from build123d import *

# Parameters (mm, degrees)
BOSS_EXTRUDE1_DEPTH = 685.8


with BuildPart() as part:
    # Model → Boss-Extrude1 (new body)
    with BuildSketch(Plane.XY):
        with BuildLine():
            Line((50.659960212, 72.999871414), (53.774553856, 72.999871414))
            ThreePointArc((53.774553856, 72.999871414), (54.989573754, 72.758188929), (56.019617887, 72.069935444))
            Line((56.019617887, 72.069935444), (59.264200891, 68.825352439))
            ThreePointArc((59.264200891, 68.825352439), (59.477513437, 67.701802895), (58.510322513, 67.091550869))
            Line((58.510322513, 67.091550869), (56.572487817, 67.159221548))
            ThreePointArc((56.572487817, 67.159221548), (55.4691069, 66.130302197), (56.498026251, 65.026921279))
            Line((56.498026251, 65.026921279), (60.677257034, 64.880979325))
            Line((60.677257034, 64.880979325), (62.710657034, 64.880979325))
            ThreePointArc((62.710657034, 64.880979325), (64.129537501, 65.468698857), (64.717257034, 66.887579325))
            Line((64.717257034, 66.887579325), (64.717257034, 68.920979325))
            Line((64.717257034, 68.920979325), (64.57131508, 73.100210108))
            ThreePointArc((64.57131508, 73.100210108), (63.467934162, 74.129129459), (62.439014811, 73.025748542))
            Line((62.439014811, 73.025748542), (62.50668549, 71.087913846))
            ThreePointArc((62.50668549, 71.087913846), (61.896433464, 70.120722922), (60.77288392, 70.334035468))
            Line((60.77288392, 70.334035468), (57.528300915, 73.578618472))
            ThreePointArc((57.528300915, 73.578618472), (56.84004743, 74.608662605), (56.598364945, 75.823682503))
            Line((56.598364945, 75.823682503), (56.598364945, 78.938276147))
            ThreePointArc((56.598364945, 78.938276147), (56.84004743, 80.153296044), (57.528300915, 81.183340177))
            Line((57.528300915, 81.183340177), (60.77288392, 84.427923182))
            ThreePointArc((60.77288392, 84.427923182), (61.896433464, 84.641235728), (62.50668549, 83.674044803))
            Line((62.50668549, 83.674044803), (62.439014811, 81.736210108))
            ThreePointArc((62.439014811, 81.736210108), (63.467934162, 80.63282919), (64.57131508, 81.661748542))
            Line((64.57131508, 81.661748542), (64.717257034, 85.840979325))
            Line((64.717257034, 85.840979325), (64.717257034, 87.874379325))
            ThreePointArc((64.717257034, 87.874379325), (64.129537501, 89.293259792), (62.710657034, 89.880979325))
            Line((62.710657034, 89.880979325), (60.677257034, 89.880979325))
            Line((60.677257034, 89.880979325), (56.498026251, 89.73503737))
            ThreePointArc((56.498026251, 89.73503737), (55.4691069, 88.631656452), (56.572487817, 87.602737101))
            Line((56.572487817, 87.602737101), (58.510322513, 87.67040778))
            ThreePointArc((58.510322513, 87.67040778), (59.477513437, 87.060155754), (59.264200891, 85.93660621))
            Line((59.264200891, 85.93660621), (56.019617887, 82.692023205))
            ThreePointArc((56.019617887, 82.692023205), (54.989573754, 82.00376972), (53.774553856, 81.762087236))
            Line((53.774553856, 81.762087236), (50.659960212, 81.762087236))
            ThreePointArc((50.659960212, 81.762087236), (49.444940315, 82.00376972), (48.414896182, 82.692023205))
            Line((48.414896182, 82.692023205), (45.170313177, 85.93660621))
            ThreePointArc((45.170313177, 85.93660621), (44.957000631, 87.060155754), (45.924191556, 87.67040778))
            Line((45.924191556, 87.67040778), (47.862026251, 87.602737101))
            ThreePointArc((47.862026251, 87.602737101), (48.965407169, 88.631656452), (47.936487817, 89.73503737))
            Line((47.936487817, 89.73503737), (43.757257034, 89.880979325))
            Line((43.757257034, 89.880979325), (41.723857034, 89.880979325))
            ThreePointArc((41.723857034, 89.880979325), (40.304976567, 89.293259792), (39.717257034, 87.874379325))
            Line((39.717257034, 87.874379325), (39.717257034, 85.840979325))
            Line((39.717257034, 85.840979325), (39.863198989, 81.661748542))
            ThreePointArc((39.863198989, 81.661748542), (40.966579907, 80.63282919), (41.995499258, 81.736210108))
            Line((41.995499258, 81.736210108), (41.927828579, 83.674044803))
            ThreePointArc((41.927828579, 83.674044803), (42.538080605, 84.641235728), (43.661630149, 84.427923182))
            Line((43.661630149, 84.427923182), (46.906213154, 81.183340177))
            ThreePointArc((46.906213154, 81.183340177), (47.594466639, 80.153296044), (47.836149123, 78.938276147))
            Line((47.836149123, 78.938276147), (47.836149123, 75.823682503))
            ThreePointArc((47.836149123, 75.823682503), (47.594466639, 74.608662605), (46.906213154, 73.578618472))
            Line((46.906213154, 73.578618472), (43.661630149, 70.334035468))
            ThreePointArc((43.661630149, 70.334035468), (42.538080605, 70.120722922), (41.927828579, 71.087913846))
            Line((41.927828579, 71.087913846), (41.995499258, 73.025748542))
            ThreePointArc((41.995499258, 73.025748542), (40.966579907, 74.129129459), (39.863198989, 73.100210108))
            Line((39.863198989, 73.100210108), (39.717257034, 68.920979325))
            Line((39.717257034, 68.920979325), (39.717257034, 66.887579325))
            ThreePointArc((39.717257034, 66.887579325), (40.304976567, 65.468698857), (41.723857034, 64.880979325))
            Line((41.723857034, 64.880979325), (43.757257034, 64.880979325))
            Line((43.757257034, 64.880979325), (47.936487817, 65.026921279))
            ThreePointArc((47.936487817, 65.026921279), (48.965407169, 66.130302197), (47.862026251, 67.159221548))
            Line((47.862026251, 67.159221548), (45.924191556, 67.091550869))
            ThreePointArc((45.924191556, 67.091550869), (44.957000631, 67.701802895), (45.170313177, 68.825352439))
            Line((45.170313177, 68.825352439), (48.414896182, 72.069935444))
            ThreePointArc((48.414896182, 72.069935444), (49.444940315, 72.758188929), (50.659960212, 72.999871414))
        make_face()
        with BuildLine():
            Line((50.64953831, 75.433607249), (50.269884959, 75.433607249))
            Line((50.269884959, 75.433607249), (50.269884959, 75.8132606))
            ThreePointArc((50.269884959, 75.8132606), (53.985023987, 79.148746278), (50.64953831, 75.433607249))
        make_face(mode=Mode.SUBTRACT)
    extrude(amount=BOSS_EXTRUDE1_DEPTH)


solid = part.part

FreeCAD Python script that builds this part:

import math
import FreeCAD as App
import Part
import Sketcher

V = App.Vector
Q = App.Units.Quantity

doc = App.newDocument("Part")
body = doc.addObject("PartDesign::Body", "Body")

# Sketch on XY plane
sketch1 = body.newObject("Sketcher::SketchObject", "Sketch")
sketch1.AttachmentSupport = (doc.getObject("XY_Plane"), [""])
sketch1.MapMode = "FlatFace"
sketch1.addGeometry([
    Part.LineSegment(V(50.66, 73, 0), V(53.77, 73, 0)),  # 0
    Part.ArcOfCircle(Part.Circle(V(53.77, 69.82, 0), V(0, 0, 1), 3.18), math.radians(45), math.radians(90)),  # 1
    Part.LineSegment(V(56.02, 72.07, 0), V(59.26, 68.83, 0)),  # 2
    Part.ArcOfCircle(Part.Circle(V(58.55, 68.11, 0), V(0, 0, 1), 1.02), math.radians(-92), math.radians(45)),  # 3
    Part.LineSegment(V(58.51, 67.09, 0), V(56.57, 67.16, 0)),  # 4
    Part.ArcOfCircle(Part.Circle(V(56.54, 66.09, 0), V(0, 0, 1), 1.07), math.radians(88), math.radians(268)),  # 5
    Part.LineSegment(V(56.5, 65.03, 0), V(60.68, 64.88, 0)),  # 6
    Part.LineSegment(V(60.68, 64.88, 0), V(62.71, 64.88, 0)),  # 7
    Part.ArcOfCircle(Part.Circle(V(62.71, 66.89, 0), V(0, 0, 1), 2.01), math.radians(-90), math.radians(0)),  # 8
    Part.LineSegment(V(64.72, 66.89, 0), V(64.72, 68.92, 0)),  # 9
    Part.LineSegment(V(64.72, 68.92, 0), V(64.57, 73.1, 0)),  # 10
    Part.ArcOfCircle(Part.Circle(V(63.51, 73.06, 0), V(0, 0, 1), 1.07), math.radians(2), math.radians(182)),  # 11
    Part.LineSegment(V(62.44, 73.03, 0), V(62.51, 71.09, 0)),  # 12
    Part.ArcOfCircle(Part.Circle(V(61.49, 71.05, 0), V(0, 0, 1), 1.02), math.radians(-135), math.radians(2)),  # 13
    Part.LineSegment(V(60.77, 70.33, 0), V(57.53, 73.58, 0)),  # 14
    Part.ArcOfCircle(Part.Circle(V(59.77, 75.82, 0), V(0, 0, 1), 3.18), math.radians(-180), math.radians(-135)),  # 15
    Part.LineSegment(V(56.6, 75.82, 0), V(56.6, 78.94, 0)),  # 16
    Part.ArcOfCircle(Part.Circle(V(59.77, 78.94, 0), V(0, 0, 1), 3.18), math.radians(135), math.radians(180)),  # 17
    Part.LineSegment(V(57.53, 81.18, 0), V(60.77, 84.43, 0)),  # 18
    Part.ArcOfCircle(Part.Circle(V(61.49, 83.71, 0), V(0, 0, 1), 1.02), math.radians(-2), math.radians(135)),  # 19
    Part.LineSegment(V(62.51, 83.67, 0), V(62.44, 81.74, 0)),  # 20
    Part.ArcOfCircle(Part.Circle(V(63.51, 81.7, 0), V(0, 0, 1), 1.07), math.radians(178), math.radians(358)),  # 21
    Part.LineSegment(V(64.57, 81.66, 0), V(64.72, 85.84, 0)),  # 22
    Part.LineSegment(V(64.72, 85.84, 0), V(64.72, 87.87, 0)),  # 23
    Part.ArcOfCircle(Part.Circle(V(62.71, 87.87, 0), V(0, 0, 1), 2.01), math.radians(0), math.radians(90)),  # 24
    Part.LineSegment(V(62.71, 89.88, 0), V(60.68, 89.88, 0)),  # 25
    Part.LineSegment(V(60.68, 89.88, 0), V(56.5, 89.74, 0)),  # 26
    Part.ArcOfCircle(Part.Circle(V(56.54, 88.67, 0), V(0, 0, 1), 1.07), math.radians(92), math.radians(272)),  # 27
    Part.LineSegment(V(56.57, 87.6, 0), V(58.51, 87.67, 0)),  # 28
    Part.ArcOfCircle(Part.Circle(V(58.55, 86.66, 0), V(0, 0, 1), 1.02), math.radians(-45), math.radians(92)),  # 29
    Part.LineSegment(V(59.26, 85.94, 0), V(56.02, 82.69, 0)),  # 30
    Part.ArcOfCircle(Part.Circle(V(53.77, 84.94, 0), V(0, 0, 1), 3.18), math.radians(-90), math.radians(-45)),  # 31
    Part.LineSegment(V(53.77, 81.76, 0), V(50.66, 81.76, 0)),  # 32
    Part.ArcOfCircle(Part.Circle(V(50.66, 84.94, 0), V(0, 0, 1), 3.18), math.radians(-135), math.radians(-90)),  # 33
    Part.LineSegment(V(48.41, 82.69, 0), V(45.17, 85.94, 0)),  # 34
    Part.ArcOfCircle(Part.Circle(V(45.89, 86.66, 0), V(0, 0, 1), 1.02), math.radians(88), math.radians(225)),  # 35
    Part.LineSegment(V(45.92, 87.67, 0), V(47.86, 87.6, 0)),  # 36
    Part.ArcOfCircle(Part.Circle(V(47.9, 88.67, 0), V(0, 0, 1), 1.07), math.radians(-92), math.radians(88)),  # 37
    Part.LineSegment(V(47.94, 89.74, 0), V(43.76, 89.88, 0)),  # 38
    Part.LineSegment(V(43.76, 89.88, 0), V(41.72, 89.88, 0)),  # 39
    Part.ArcOfCircle(Part.Circle(V(41.72, 87.87, 0), V(0, 0, 1), 2.01), math.radians(90), math.radians(180)),  # 40
    Part.LineSegment(V(39.72, 87.87, 0), V(39.72, 85.84, 0)),  # 41
    Part.LineSegment(V(39.72, 85.84, 0), V(39.86, 81.66, 0)),  # 42
    Part.ArcOfCircle(Part.Circle(V(40.93, 81.7, 0), V(0, 0, 1), 1.07), math.radians(-178), math.radians(2)),  # 43
    Part.LineSegment(V(42, 81.74, 0), V(41.93, 83.67, 0)),  # 44
    Part.ArcOfCircle(Part.Circle(V(42.94, 83.71, 0), V(0, 0, 1), 1.02), math.radians(45), math.radians(182)),  # 45
    Part.LineSegment(V(43.66, 84.43, 0), V(46.91, 81.18, 0)),  # 46
    Part.ArcOfCircle(Part.Circle(V(44.66, 78.94, 0), V(0, 0, 1), 3.18), math.radians(0), math.radians(45)),  # 47
    Part.LineSegment(V(47.84, 78.94, 0), V(47.84, 75.82, 0)),  # 48
    Part.ArcOfCircle(Part.Circle(V(44.66, 75.82, 0), V(0, 0, 1), 3.18), math.radians(-45), math.radians(0)),  # 49
    Part.LineSegment(V(46.91, 73.58, 0), V(43.66, 70.33, 0)),  # 50
    Part.ArcOfCircle(Part.Circle(V(42.94, 71.05, 0), V(0, 0, 1), 1.02), math.radians(178), math.radians(315)),  # 51
    Part.LineSegment(V(41.93, 71.09, 0), V(42, 73.03, 0)),  # 52
    Part.ArcOfCircle(Part.Circle(V(40.93, 73.06, 0), V(0, 0, 1), 1.07), math.radians(-2), math.radians(178)),  # 53
    Part.LineSegment(V(39.86, 73.1, 0), V(39.72, 68.92, 0)),  # 54
    Part.LineSegment(V(39.72, 68.92, 0), V(39.72, 66.89, 0)),  # 55
    Part.ArcOfCircle(Part.Circle(V(41.72, 66.89, 0), V(0, 0, 1), 2.01), math.radians(180), math.radians(270)),  # 56
    Part.LineSegment(V(41.72, 64.88, 0), V(43.76, 64.88, 0)),  # 57
    Part.LineSegment(V(43.76, 64.88, 0), V(47.94, 65.03, 0)),  # 58
    Part.ArcOfCircle(Part.Circle(V(47.9, 66.09, 0), V(0, 0, 1), 1.07), math.radians(-88), math.radians(92)),  # 59
    Part.LineSegment(V(47.86, 67.16, 0), V(45.92, 67.09, 0)),  # 60
    Part.ArcOfCircle(Part.Circle(V(45.89, 68.11, 0), V(0, 0, 1), 1.02), math.radians(135), math.radians(272)),  # 61
    Part.LineSegment(V(45.17, 68.83, 0), V(48.41, 72.07, 0)),  # 62
    Part.ArcOfCircle(Part.Circle(V(50.66, 69.82, 0), V(0, 0, 1), 3.18), math.radians(90), math.radians(135)),  # 63
    Part.ArcOfCircle(Part.Circle(V(52.22, 77.38, 0), V(0, 0, 1), 2.5), math.radians(-129), math.radians(219)),  # 64
    Part.LineSegment(V(50.65, 75.43, 0), V(50.27, 75.43, 0)),  # 65
    Part.LineSegment(V(50.27, 75.43, 0), V(50.27, 75.81, 0)),  # 66
], False)
sketch1.addConstraint([
    Sketcher.Constraint("Tangent", 0, 2, 1, 2),
    Sketcher.Constraint("Tangent", 1, 1, 2, 1),
    Sketcher.Constraint("Tangent", 2, 2, 3, 2),
    Sketcher.Constraint("Tangent", 3, 1, 4, 1),
    Sketcher.Constraint("Tangent", 4, 2, 5, 1),
    Sketcher.Constraint("Tangent", 5, 2, 6, 1),
    Sketcher.Constraint("Coincident", 6, 2, 7, 1),
    Sketcher.Constraint("Tangent", 7, 2, 8, 1),
    Sketcher.Constraint("Tangent", 8, 2, 9, 1),
    Sketcher.Constraint("Coincident", 9, 2, 10, 1),
    Sketcher.Constraint("Tangent", 10, 2, 11, 1),
    Sketcher.Constraint("Tangent", 11, 2, 12, 1),
    Sketcher.Constraint("Tangent", 12, 2, 13, 2),
    Sketcher.Constraint("Tangent", 13, 1, 14, 1),
    Sketcher.Constraint("Tangent", 14, 2, 15, 2),
    Sketcher.Constraint("Tangent", 15, 1, 16, 1),
    Sketcher.Constraint("Tangent", 16, 2, 17, 2),
    Sketcher.Constraint("Tangent", 17, 1, 18, 1),
    Sketcher.Constraint("Tangent", 18, 2, 19, 2),
    Sketcher.Constraint("Tangent", 19, 1, 20, 1),
    Sketcher.Constraint("Tangent", 20, 2, 21, 1),
    Sketcher.Constraint("Tangent", 21, 2, 22, 1),
    Sketcher.Constraint("Coincident", 22, 2, 23, 1),
    Sketcher.Constraint("Tangent", 23, 2, 24, 1),
    Sketcher.Constraint("Tangent", 24, 2, 25, 1),
    Sketcher.Constraint("Coincident", 25, 2, 26, 1),
    Sketcher.Constraint("Tangent", 26, 2, 27, 1),
    Sketcher.Constraint("Tangent", 27, 2, 28, 1),
    Sketcher.Constraint("Tangent", 28, 2, 29, 2),
    Sketcher.Constraint("Tangent", 29, 1, 30, 1),
    Sketcher.Constraint("Tangent", 30, 2, 31, 2),
    Sketcher.Constraint("Tangent", 31, 1, 32, 1),
    Sketcher.Constraint("Tangent", 32, 2, 33, 2),
    Sketcher.Constraint("Tangent", 33, 1, 34, 1),
    Sketcher.Constraint("Tangent", 34, 2, 35, 2),
    Sketcher.Constraint("Tangent", 35, 1, 36, 1),
    Sketcher.Constraint("Tangent", 36, 2, 37, 1),
    Sketcher.Constraint("Tangent", 37, 2, 38, 1),
    Sketcher.Constraint("Coincident", 38, 2, 39, 1),
    Sketcher.Constraint("Tangent", 39, 2, 40, 1),
    Sketcher.Constraint("Tangent", 40, 2, 41, 1),
    Sketcher.Constraint("Coincident", 41, 2, 42, 1),
    Sketcher.Constraint("Tangent", 42, 2, 43, 1),
    Sketcher.Constraint("Tangent", 43, 2, 44, 1),
    Sketcher.Constraint("Tangent", 44, 2, 45, 2),
    Sketcher.Constraint("Tangent", 45, 1, 46, 1),
    Sketcher.Constraint("Tangent", 46, 2, 47, 2),
    Sketcher.Constraint("Tangent", 47, 1, 48, 1),
    Sketcher.Constraint("Tangent", 48, 2, 49, 2),
    Sketcher.Constraint("Tangent", 49, 1, 50, 1),
    Sketcher.Constraint("Tangent", 50, 2, 51, 2),
    Sketcher.Constraint("Tangent", 51, 1, 52, 1),
    Sketcher.Constraint("Tangent", 52, 2, 53, 1),
    Sketcher.Constraint("Tangent", 53, 2, 54, 1),
    Sketcher.Constraint("Coincident", 54, 2, 55, 1),
    Sketcher.Constraint("Tangent", 55, 2, 56, 1),
    Sketcher.Constraint("Tangent", 56, 2, 57, 1),
    Sketcher.Constraint("Coincident", 57, 2, 58, 1),
    Sketcher.Constraint("Tangent", 58, 2, 59, 1),
    Sketcher.Constraint("Tangent", 59, 2, 60, 1),
    Sketcher.Constraint("Tangent", 60, 2, 61, 2),
    Sketcher.Constraint("Tangent", 61, 1, 62, 1),
    Sketcher.Constraint("Tangent", 62, 2, 63, 2),
    Sketcher.Constraint("Tangent", 63, 1, 0, 1),
    Sketcher.Constraint("Coincident", 64, 1, 65, 1),
    Sketcher.Constraint("Coincident", 65, 2, 66, 1),
    Sketcher.Constraint("Coincident", 66, 2, 64, 2),
    Sketcher.Constraint("Horizontal", 0),
    Sketcher.Constraint("Horizontal", 7),
    Sketcher.Constraint("Vertical", 9),
    Sketcher.Constraint("Vertical", 16),
    Sketcher.Constraint("Vertical", 23),
    Sketcher.Constraint("Horizontal", 25),
    Sketcher.Constraint("Horizontal", 32),
    Sketcher.Constraint("Horizontal", 39),
    Sketcher.Constraint("Vertical", 41),
    Sketcher.Constraint("Vertical", 48),
    Sketcher.Constraint("Vertical", 55),
    Sketcher.Constraint("Horizontal", 57),
    Sketcher.Constraint("Horizontal", 65),
    Sketcher.Constraint("Vertical", 66),
    Sketcher.Constraint("Equal", 5, 11),
    Sketcher.Constraint("Equal", 3, 13),
    Sketcher.Constraint("Equal", 1, 15),
    Sketcher.Constraint("Equal", 15, 17),
    Sketcher.Constraint("Equal", 13, 19),
    Sketcher.Constraint("Equal", 11, 21),
    Sketcher.Constraint("Equal", 8, 24),
    Sketcher.Constraint("Equal", 21, 27),
    Sketcher.Constraint("Equal", 19, 29),
    Sketcher.Constraint("Equal", 17, 31),
    Sketcher.Constraint("Equal", 31, 33),
    Sketcher.Constraint("Equal", 29, 35),
    Sketcher.Constraint("Equal", 27, 37),
    Sketcher.Constraint("Equal", 24, 40),
    Sketcher.Constraint("Equal", 37, 43),
    Sketcher.Constraint("Equal", 35, 45),
    Sketcher.Constraint("Equal", 33, 47),
    Sketcher.Constraint("Equal", 47, 49),
    Sketcher.Constraint("Equal", 45, 51),
    Sketcher.Constraint("Equal", 43, 53),
    Sketcher.Constraint("Equal", 40, 56),
    Sketcher.Constraint("Equal", 53, 59),
    Sketcher.Constraint("Equal", 51, 61),
    Sketcher.Constraint("Equal", 49, 63),
    Sketcher.Constraint("Parallel", 4, 6),
    Sketcher.Constraint("Parallel", 10, 12),
    Sketcher.Constraint("Parallel", 2, 14),
    Sketcher.Constraint("Perpendicular", 14, 18),
    Sketcher.Constraint("Perpendicular", 6, 20),
    Sketcher.Constraint("Parallel", 20, 22),
    Sketcher.Constraint("Perpendicular", 12, 26),
    Sketcher.Constraint("Parallel", 26, 28),
    Sketcher.Constraint("Parallel", 18, 30),
    Sketcher.Constraint("Perpendicular", 30, 34),
    Sketcher.Constraint("Perpendicular", 22, 36),
    Sketcher.Constraint("Parallel", 36, 38),
    Sketcher.Constraint("Perpendicular", 28, 42),
    Sketcher.Constraint("Parallel", 42, 44),
    Sketcher.Constraint("Parallel", 34, 46),
    Sketcher.Constraint("Perpendicular", 46, 50),
    Sketcher.Constraint("Perpendicular", 38, 52),
    Sketcher.Constraint("Parallel", 52, 54),
    Sketcher.Constraint("Perpendicular", 44, 58),
    Sketcher.Constraint("Parallel", 58, 60),
    Sketcher.Constraint("Parallel", 50, 62),
    Sketcher.Constraint("Horizontal", 29, 3, 35, 3),
    Sketcher.Constraint("Horizontal", 27, 3, 37, 3),
    Sketcher.Constraint("Horizontal", 24, 3, 40, 3),
    Sketcher.Constraint("Horizontal", 21, 3, 43, 3),
    Sketcher.Constraint("Horizontal", 19, 3, 45, 3),
    Sketcher.Constraint("Horizontal", 17, 3, 47, 3),
    Sketcher.Constraint("Horizontal", 15, 3, 49, 3),
    Sketcher.Constraint("Horizontal", 13, 3, 51, 3),
    Sketcher.Constraint("Horizontal", 11, 3, 53, 3),
    Sketcher.Constraint("Horizontal", 8, 3, 56, 3),
    Sketcher.Constraint("Horizontal", 5, 3, 59, 3),
    Sketcher.Constraint("Horizontal", 3, 3, 61, 3),
    Sketcher.Constraint("Horizontal", 30, 2, 33, 1),
    Sketcher.Constraint("Horizontal", 22, 2, 41, 2),
    Sketcher.Constraint("Horizontal", 21, 2, 42, 2),
    Sketcher.Constraint("Horizontal", 9, 2, 54, 2),
    Sketcher.Constraint("Vertical", 13, 3, 19, 3),
    Sketcher.Constraint("Vertical", 11, 3, 21, 3),
    Sketcher.Constraint("Vertical", 8, 3, 24, 3),
    Sketcher.Constraint("Vertical", 5, 3, 27, 3),
    Sketcher.Constraint("Vertical", 3, 3, 29, 3),
    Sketcher.Constraint("Vertical", 1, 3, 31, 3),
    Sketcher.Constraint("Vertical", 37, 3, 59, 3),
    Sketcher.Constraint("Vertical", 6, 2, 25, 2),
    Sketcher.Constraint("Equal", 25, 39),
    Sketcher.Constraint("Equal", 57, 9),
    Sketcher.Constraint("Equal", 32, 16),
    Sketcher.Constraint("Equal", 9, 23),
    Sketcher.Constraint("Equal", 65, 66),
    Sketcher.Constraint("Equal", 6, 10),
    Sketcher.Constraint("Equal", 4, 12),
    Sketcher.Constraint("Equal", 2, 14),
    Sketcher.Constraint("Radius", 3, Q("0.04 in")),
    Sketcher.Constraint("Angle", 4, Q("178 deg")),
    Sketcher.Constraint("Radius", 1, Q("0.125 in")),
    Sketcher.Constraint("Radius", 5, Q("0.042 in")),
    Sketcher.Constraint("Radius", 8, Q("0.079 in")),
    Sketcher.Constraint("Radius", 64, Q("2.5 mm")),
    Sketcher.Constraint("DistanceX", 7, 1, 7, 2, Q("2.0334 mm")),
    Sketcher.Constraint("DistanceX", -1, 1, 2, 2, Q("59.264201 mm")),
    Sketcher.Constraint("DistanceX", -1, 1, 14, 2, Q("57.528301 mm")),
    Sketcher.Constraint("DistanceX", -1, 1, 42, 2, Q("39.863199 mm")),
    Sketcher.Constraint("Distance", 6, Q("4.181778 mm")),
    Sketcher.Constraint("DistanceX", 0, 1, 0, 2, Q("3.114594 mm")),
    Sketcher.Constraint("DistanceX", 65, 2, 65, 1, Q("0.379653 mm")),
    Sketcher.Constraint("DistanceY", -1, 1, 1, 3, Q("69.824871 mm")),
    Sketcher.Constraint("DistanceY", -1, 1, 64, 3, Q("77.380979 mm")),
    Sketcher.Constraint("DistanceX", -1, 1, 64, 1, Q("50.649538 mm")),
])
pad1 = body.newObject("PartDesign::Pad", "Pad")
pad1.Profile = sketch1
pad1.Length = Q("27 in")

doc.recompute()
